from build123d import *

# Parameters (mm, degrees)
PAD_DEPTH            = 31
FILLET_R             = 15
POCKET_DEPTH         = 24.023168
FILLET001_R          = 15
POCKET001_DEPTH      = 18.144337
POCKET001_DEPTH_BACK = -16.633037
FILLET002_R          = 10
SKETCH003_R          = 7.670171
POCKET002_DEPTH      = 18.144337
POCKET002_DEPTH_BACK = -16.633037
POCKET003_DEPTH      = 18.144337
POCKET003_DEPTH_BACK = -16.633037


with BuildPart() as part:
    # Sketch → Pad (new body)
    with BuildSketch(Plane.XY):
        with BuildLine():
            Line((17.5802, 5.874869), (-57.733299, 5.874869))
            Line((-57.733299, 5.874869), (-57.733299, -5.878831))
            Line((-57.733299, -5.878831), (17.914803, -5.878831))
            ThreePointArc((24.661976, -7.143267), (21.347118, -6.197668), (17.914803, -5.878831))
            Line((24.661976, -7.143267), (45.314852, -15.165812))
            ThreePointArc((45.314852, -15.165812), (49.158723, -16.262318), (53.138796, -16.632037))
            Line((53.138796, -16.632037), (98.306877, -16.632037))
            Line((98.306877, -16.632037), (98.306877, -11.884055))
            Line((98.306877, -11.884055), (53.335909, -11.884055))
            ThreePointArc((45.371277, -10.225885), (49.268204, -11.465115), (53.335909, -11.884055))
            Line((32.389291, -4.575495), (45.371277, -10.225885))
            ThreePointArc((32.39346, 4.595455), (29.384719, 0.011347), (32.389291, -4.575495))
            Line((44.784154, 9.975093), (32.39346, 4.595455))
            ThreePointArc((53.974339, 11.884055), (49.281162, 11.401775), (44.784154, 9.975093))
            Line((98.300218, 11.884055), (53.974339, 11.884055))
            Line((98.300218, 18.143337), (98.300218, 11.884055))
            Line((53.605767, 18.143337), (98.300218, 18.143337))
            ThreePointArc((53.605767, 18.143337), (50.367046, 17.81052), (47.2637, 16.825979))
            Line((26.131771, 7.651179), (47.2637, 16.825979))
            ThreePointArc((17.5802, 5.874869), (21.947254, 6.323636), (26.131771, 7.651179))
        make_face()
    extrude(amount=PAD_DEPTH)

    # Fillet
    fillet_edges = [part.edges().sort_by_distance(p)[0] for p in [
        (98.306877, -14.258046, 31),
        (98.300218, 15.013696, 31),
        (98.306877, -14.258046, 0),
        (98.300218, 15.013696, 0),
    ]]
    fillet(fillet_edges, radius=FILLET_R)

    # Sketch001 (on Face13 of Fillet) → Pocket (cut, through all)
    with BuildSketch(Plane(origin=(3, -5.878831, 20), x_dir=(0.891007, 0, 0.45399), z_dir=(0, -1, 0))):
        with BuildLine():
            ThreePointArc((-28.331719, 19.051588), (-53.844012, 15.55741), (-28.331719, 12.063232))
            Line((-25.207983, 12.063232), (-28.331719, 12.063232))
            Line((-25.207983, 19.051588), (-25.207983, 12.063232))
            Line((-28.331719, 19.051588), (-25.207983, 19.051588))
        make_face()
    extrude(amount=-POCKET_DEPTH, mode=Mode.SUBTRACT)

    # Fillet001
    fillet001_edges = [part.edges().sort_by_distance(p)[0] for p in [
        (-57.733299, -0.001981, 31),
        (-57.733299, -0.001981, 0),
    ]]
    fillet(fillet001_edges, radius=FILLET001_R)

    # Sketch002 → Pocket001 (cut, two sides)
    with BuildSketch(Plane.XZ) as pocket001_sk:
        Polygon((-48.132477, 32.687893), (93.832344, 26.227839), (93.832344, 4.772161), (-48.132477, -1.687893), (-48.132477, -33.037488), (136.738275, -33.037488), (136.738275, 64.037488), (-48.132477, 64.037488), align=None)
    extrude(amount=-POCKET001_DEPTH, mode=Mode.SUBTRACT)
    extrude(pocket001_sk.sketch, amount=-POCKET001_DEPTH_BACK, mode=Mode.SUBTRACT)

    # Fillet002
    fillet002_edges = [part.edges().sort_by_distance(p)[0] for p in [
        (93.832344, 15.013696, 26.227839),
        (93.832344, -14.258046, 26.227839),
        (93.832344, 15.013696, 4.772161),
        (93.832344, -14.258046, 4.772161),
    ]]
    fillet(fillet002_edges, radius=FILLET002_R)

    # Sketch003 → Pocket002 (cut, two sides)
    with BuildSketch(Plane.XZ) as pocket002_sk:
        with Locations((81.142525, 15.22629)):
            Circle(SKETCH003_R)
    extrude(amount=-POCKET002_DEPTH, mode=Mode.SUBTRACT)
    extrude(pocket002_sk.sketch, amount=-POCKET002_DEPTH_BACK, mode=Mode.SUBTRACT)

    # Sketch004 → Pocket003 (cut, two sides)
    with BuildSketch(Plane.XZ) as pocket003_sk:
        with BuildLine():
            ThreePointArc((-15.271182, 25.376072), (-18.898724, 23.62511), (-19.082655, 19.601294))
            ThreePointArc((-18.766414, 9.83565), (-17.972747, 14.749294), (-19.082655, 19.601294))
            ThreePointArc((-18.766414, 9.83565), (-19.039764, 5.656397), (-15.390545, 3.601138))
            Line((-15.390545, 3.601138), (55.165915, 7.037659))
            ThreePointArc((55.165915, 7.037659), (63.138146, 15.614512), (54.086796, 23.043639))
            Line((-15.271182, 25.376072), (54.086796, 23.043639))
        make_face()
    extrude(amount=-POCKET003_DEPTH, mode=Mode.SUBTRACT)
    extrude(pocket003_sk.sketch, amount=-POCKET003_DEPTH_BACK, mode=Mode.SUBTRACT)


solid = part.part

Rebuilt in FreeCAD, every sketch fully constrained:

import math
import FreeCAD as App
import Part
import Sketcher
Q = App.Units.Quantity


def edges_at(feature, points):
    """Names of the edges that pass closest to the given points."""
    edges = feature.Shape.Edges
    near = lambda p: min(range(len(edges)), key=lambda i: edges[i].distToShape(Part.Vertex(*p))[0])
    return sorted({f"Edge{near(p) + 1}" for p in points})


def add_polygon(sketch, points):
    """Adds a closed chain of lines whose ends are joined by coincident constraints."""
    first, n = sketch.GeometryCount, len(points)
    for a, b in zip(points, points[1:] + points[:1]):
        sketch.addGeometry(Part.LineSegment(App.Vector(*a, 0), App.Vector(*b, 0)), False)
    for i in range(n):
        sketch.addConstraint(Sketcher.Constraint("Coincident", first + i, 2, first + (i + 1) % n, 1))

doc = App.newDocument("Part")
params = doc.addObject("Spreadsheet::Sheet", "Params")
for row, (alias, value) in enumerate([
    ("sketch1_radius", "5 mm"),
    ("pad1_length", "31 mm"),
    ("fillet_radius", "15 mm"),
    ("fillet2_radius", "15 mm"),
    ("fillet3_radius", "10 mm"),
], start=1):
    params.set(f"A{row}", alias)
    params.set(f"B{row}", "=" + value)
    params.setAlias(f"B{row}", alias)

body = doc.addObject("PartDesign::Body", "Body")

# Sketch on XY plane
sketch1 = body.newObject("Sketcher::SketchObject", "Sketch")
sketch1.AttachmentSupport = (doc.getObject("XY_Plane"), [""])
sketch1.MapMode = "FlatFace"
sketch1.addGeometry(Part.LineSegment(App.Vector(17.6, 5.9, 0), App.Vector(-57.7, 5.9, 0)), False)
sketch1.addGeometry(Part.LineSegment(App.Vector(-57.7, 5.9, 0), App.Vector(-57.7, -5.9, 0)), False)
sketch1.addGeometry(Part.LineSegment(App.Vector(-57.7, -5.9, 0), App.Vector(17.9, -5.9, 0)), False)
sketch1.addGeometry(Part.ArcOfCircle(Part.Circle(App.Vector(17.9, -24.5, 0), App.Vector(0, 0, 1), 18.6), math.radians(69), math.radians(90)), False)
sketch1.addGeometry(Part.LineSegment(App.Vector(24.7, -7.1, 0), App.Vector(45.3, -15.2, 0)), False)
sketch1.addGeometry(Part.ArcOfCircle(Part.Circle(App.Vector(53.1, 5, 0), App.Vector(0, 0, 1), 21.6), math.radians(-111), math.radians(-90)), False)
sketch1.addGeometry(Part.LineSegment(App.Vector(53.1, -16.6, 0), App.Vector(98.3, -16.6, 0)), False)
sketch1.addGeometry(Part.LineSegment(App.Vector(98.3, -16.6, 0), App.Vector(98.3, -11.9, 0)), False)
sketch1.addGeometry(Part.LineSegment(App.Vector(98.3, -11.9, 0), App.Vector(53.3, -11.9, 0)), False)
sketch1.addGeometry(Part.ArcOfCircle(Part.Circle(App.Vector(53.3, 8.1, 0), App.Vector(0, 0, 1), 20), math.radians(-114), math.radians(-90)), False)
sketch1.addGeometry(Part.LineSegment(App.Vector(45.4, -10.2, 0), App.Vector(32.4, -4.6, 0)), False)
sketch1.addGeometry(Part.ArcOfCircle(Part.Circle(App.Vector(34.4, 0, 0), App.Vector(0, 0, 1), 5), math.radians(113), math.radians(246)), False)
sketch1.addGeometry(Part.LineSegment(App.Vector(32.4, 4.6, 0), App.Vector(44.8, 10, 0)), False)
sketch1.addGeometry(Part.ArcOfCircle(Part.Circle(App.Vector(54, -11.2, 0), App.Vector(0, 0, 1), 23.1), math.radians(90), math.radians(113)), False)
sketch1.addGeometry(Part.LineSegment(App.Vector(54, 11.9, 0), App.Vector(98.3, 11.9, 0)), False)
sketch1.addGeometry(Part.LineSegment(App.Vector(98.3, 11.9, 0), App.Vector(98.3, 18.1, 0)), False)
sketch1.addGeometry(Part.LineSegment(App.Vector(98.3, 18.1, 0), App.Vector(53.6, 18.1, 0)), False)
sketch1.addGeometry(Part.ArcOfCircle(Part.Circle(App.Vector(53.6, 2.2, 0), App.Vector(0, 0, 1), 15.9), math.radians(90), math.radians(113)), False)
sketch1.addGeometry(Part.LineSegment(App.Vector(47.3, 16.8, 0), App.Vector(26.1, 7.7, 0)), False)
sketch1.addGeometry(Part.ArcOfCircle(Part.Circle(App.Vector(17.6, 27.3, 0), App.Vector(0, 0, 1), 21.5), math.radians(-90), math.radians(-67)), False)
sketch1.addConstraint(Sketcher.Constraint("Coincident", 0, 2, 1, 1))
sketch1.addConstraint(Sketcher.Constraint("Coincident", 1, 2, 2, 1))
sketch1.addConstraint(Sketcher.Constraint("Tangent", 2, 2, 3, 2))
sketch1.addConstraint(Sketcher.Constraint("Tangent", 3, 1, 4, 1))
sketch1.addConstraint(Sketcher.Constraint("Tangent", 4, 2, 5, 1))
sketch1.addConstraint(Sketcher.Constraint("Tangent", 5, 2, 6, 1))
sketch1.addConstraint(Sketcher.Constraint("Coincident", 6, 2, 7, 1))
sketch1.addConstraint(Sketcher.Constraint("Coincident", 7, 2, 8, 1))
sketch1.addConstraint(Sketcher.Constraint("Tangent", 8, 2, 9, 2))
sketch1.addConstraint(Sketcher.Constraint("Tangent", 9, 1, 10, 1))
sketch1.addConstraint(Sketcher.Constraint("Tangent", 10, 2, 11, 2))
sketch1.addConstraint(Sketcher.Constraint("Tangent", 11, 1, 12, 1))
sketch1.addConstraint(Sketcher.Constraint("Tangent", 12, 2, 13, 2))
sketch1.addConstraint(Sketcher.Constraint("Tangent", 13, 1, 14, 1))
sketch1.addConstraint(Sketcher.Constraint("Coincident", 14, 2, 15, 1))
sketch1.addConstraint(Sketcher.Constraint("Coincident", 15, 2, 16, 1))
sketch1.addConstraint(Sketcher.Constraint("Tangent", 16, 2, 17, 1))
sketch1.addConstraint(Sketcher.Constraint("Tangent", 17, 2, 18, 1))
sketch1.addConstraint(Sketcher.Constraint("Tangent", 18, 2, 19, 2))
sketch1.addConstraint(Sketcher.Constraint("Tangent", 19, 1, 0, 1))
sketch1.addConstraint(Sketcher.Constraint("Horizontal", 0))
sketch1.addConstraint(Sketcher.Constraint("Vertical", 1))
sketch1.addConstraint(Sketcher.Constraint("Horizontal", 2))
sketch1.addConstraint(Sketcher.Constraint("Horizontal", 6))
sketch1.addConstraint(Sketcher.Constraint("Vertical", 7))
sketch1.addConstraint(Sketcher.Constraint("Horizontal", 8))
sketch1.addConstraint(Sketcher.Constraint("Horizontal", 14))
sketch1.addConstraint(Sketcher.Constraint("Vertical", 15))
sketch1.addConstraint(Sketcher.Constraint("Horizontal", 16))
sketch1.addConstraint(Sketcher.Constraint("Parallel", 12, 18))
sketch1.addConstraint(Sketcher.Constraint("Radius", 11, Q("5 mm")))
sketch1.addConstraint(Sketcher.Constraint("Radius", 3, Q("18.634071 mm")))
sketch1.addConstraint(Sketcher.Constraint("Radius", 13, Q("23.076311 mm")))
sketch1.addConstraint(Sketcher.Constraint("Radius", 17, Q("15.924751 mm")))
sketch1.addConstraint(Sketcher.Constraint("DistanceX", 0, 2, 0, 1, Q("75.313499 mm")))
sketch1.addConstraint(Sketcher.Constraint("DistanceX", 2, 1, 2, 2, Q("75.648102 mm")))
sketch1.addConstraint(Sketcher.Constraint("DistanceY", 1, 2, 1, 1, Q("11.7537 mm")))
sketch1.addConstraint(Sketcher.Constraint("Radius", 5, Q("21.607823 mm")))
sketch1.addConstraint(Sketcher.Constraint("Radius", 9, Q("19.957223 mm")))
sketch1.addConstraint(Sketcher.Constraint("Radius", 19, Q("21.472786 mm")))
sketch1.addConstraint(Sketcher.Constraint("DistanceX", 6, 1, 6, 2, Q("45.168081 mm")))
sketch1.addConstraint(Sketcher.Constraint("DistanceX", 14, 1, 14, 2, Q("44.325879 mm")))
sketch1.addConstraint(Sketcher.Constraint("DistanceX", 16, 2, 16, 1, Q("44.694451 mm")))
sketch1.addConstraint(Sketcher.Constraint("DistanceY", 15, 1, 15, 2, Q("6.259282 mm")))
sketch1.addConstraint(Sketcher.Constraint("DistanceX", -1, 1, 3, 3, Q("17.9148 mm")))
sketch1.addConstraint(Sketcher.Constraint("DistanceY", 3, 3, -1, 1, Q("24.512902 mm")))
sketch1.addConstraint(Sketcher.Constraint("DistanceX", -1, 1, 17, 2, Q("47.2637 mm")))
sketch1.addConstraint(Sketcher.Constraint("DistanceY", 17, 3, 5, 3, Q("2.7572 mm")))
sketch1.addConstraint(Sketcher.Constraint("DistanceY", 0, 2, 9, 3, Q("2.198299 mm")))
sketch1.addConstraint(Sketcher.Constraint("DistanceY", 4, 2, 5, 3, Q("20.141598 mm")))
sketch1.addConstraint(Sketcher.Constraint("DistanceY", 7, 2, 13, 3, Q("0.691799 mm")))
sketch1.addConstraint(Sketcher.Constraint("DistanceY", 11, 1, 13, 1, Q("7.2886 mm")))
sketch1.addConstraint(Sketcher.Constraint("Distance", 10, Q("14.15835 mm")))
sketch1.setExpression("Constraints[30]", "Params.sketch1_radius")
pad1 = body.newObject("PartDesign::Pad", "Pad")
pad1.Profile = sketch1
pad1.setExpression("Length", "Params.pad1_length")
doc.recompute()

fillet = body.newObject("PartDesign::Fillet", "Fillet")
fillet.Base = (pad1, edges_at(pad1, [
    (98.307, -14.258, 31),
    (98.3, 15.014, 31),
    (98.307, -14.258, 0),
    (98.3, 15.014, 0),
]))
fillet.setExpression("Radius", "Params.fillet_radius")

# Sketch on XZ plane
sketch2 = body.newObject("Sketcher::SketchObject", "Sketch001")
sketch2.AttachmentSupport = (doc.getObject("XZ_Plane"), [""])
sketch2.MapMode = "FlatFace"
sketch2.AttachmentOffset = App.Placement(App.Vector(0, 0, 5.878831), App.Rotation())
sketch2.addGeometry(Part.ArcOfCircle(Part.Circle(App.Vector(-40.5, 15.3, 0), App.Vector(0, 0, 1), 13), math.radians(43), math.radians(371)), False)
sketch2.addGeometry(Part.LineSegment(App.Vector(-27.7, 17.9, 0), App.Vector(-24.9, 19.3, 0)), False)
sketch2.addGeometry(Part.LineSegment(App.Vector(-24.9, 19.3, 0), App.Vector(-28.1, 25.5, 0)), False)
sketch2.addGeometry(Part.LineSegment(App.Vector(-28.1, 25.5, 0), App.Vector(-30.9, 24.1, 0)), False)
sketch2.addConstraint(Sketcher.Constraint("Coincident", 0, 2, 1, 1))
sketch2.addConstraint(Sketcher.Constraint("Coincident", 1, 2, 2, 1))
sketch2.addConstraint(Sketcher.Constraint("Coincident", 2, 2, 3, 1))
sketch2.addConstraint(Sketcher.Constraint("Coincident", 3, 2, 0, 1))
sketch2.addConstraint(Sketcher.Constraint("Perpendicular", 1, 2))
sketch2.addConstraint(Sketcher.Constraint("Perpendicular", 2, 3))
sketch2.addConstraint(Sketcher.Constraint("Equal", 1, 3))
sketch2.addConstraint(Sketcher.Constraint("Radius", 0, Q("12.995429 mm")))
sketch2.addConstraint(Sketcher.Constraint("DistanceX", 0, 2, -1, 1, Q("27.720341 mm")))
sketch2.addConstraint(Sketcher.Constraint("DistanceX", 1, 2, -1, 1, Q("24.93707 mm")))
sketch2.addConstraint(Sketcher.Constraint("DistanceY", -1, 1, 3, 2, Q("24.11278 mm")))
sketch2.addConstraint(Sketcher.Constraint("DistanceY", 0, 3, 1, 2, Q("3.987338 mm")))
sketch2.addConstraint(Sketcher.Constraint("DistanceX", 0, 3, 2, 2, Q("12.34956 mm")))
pocket1 = body.newObject("PartDesign::Pocket", "Pocket")
pocket1.Profile = sketch2
pocket1.Type = "ThroughAll"
doc.recompute()

fillet2 = body.newObject("PartDesign::Fillet", "Fillet001")
fillet2.Base = (pocket1, edges_at(pocket1, [(-57.733, -0.002, 31), (-57.733, -0.002, 0)]))
fillet2.setExpression("Radius", "Params.fillet2_radius")

# Sketch on XZ plane
sketch3 = body.newObject("Sketcher::SketchObject", "Sketch002")
sketch3.AttachmentSupport = (doc.getObject("XZ_Plane"), [""])
sketch3.MapMode = "FlatFace"
add_polygon(sketch3, [(-48, 33), (94, 26), (94, 5), (-48, -2), (-48, -33), (137, -33), (137, 64), (-48, 64)])  # lines 0-7
sketch3.addConstraint(Sketcher.Constraint("Vertical", 1))
sketch3.addConstraint(Sketcher.Constraint("Vertical", 3))
sketch3.addConstraint(Sketcher.Constraint("Horizontal", 4))
sketch3.addConstraint(Sketcher.Constraint("Vertical", 5))
sketch3.addConstraint(Sketcher.Constraint("Horizontal", 6))
sketch3.addConstraint(Sketcher.Constraint("Vertical", 7))
sketch3.addConstraint(Sketcher.Constraint("Vertical", 3, 2, 6, 2))
sketch3.addConstraint(Sketcher.Constraint("Equal", 3, 7))
sketch3.addConstraint(Sketcher.Constraint("Equal", 0, 2))
sketch3.addConstraint(Sketcher.Constraint("DistanceX", 4, 1, 4, 2, Q("184.870752 mm")))
sketch3.addConstraint(Sketcher.Constraint("DistanceY", 1, 2, 1, 1, Q("21.455678 mm")))
sketch3.addConstraint(Sketcher.Constraint("DistanceY", 3, 2, 3, 1, Q("31.349595 mm")))
sketch3.addConstraint(Sketcher.Constraint("DistanceY", 5, 1, 5, 2, Q("97.074976 mm")))
sketch3.addConstraint(Sketcher.Constraint("DistanceY", -1, 1, 0, 2, Q("26.227839 mm")))
sketch3.addConstraint(Sketcher.Constraint("DistanceX", 2, 2, 1, 2, Q("141.964821 mm")))
sketch3.addConstraint(Sketcher.Constraint("DistanceX", -1, 1, 0, 2, Q("93.832344 mm")))
pocket2 = body.newObject("PartDesign::Pocket", "Pocket001")
pocket2.Profile = sketch3
pocket2.Type = "ThroughAll"
pocket2.Midplane = True
doc.recompute()

fillet3 = body.newObject("PartDesign::Fillet", "Fillet002")
fillet3.Base = (pocket2, edges_at(pocket2, [
    (93.832, 15.014, 26.228),
    (93.832, -14.258, 26.228),
    (93.832, 15.014, 4.772),
    (93.832, -14.258, 4.772),
]))
fillet3.setExpression("Radius", "Params.fillet3_radius")

# Sketch on XZ plane
sketch4 = body.newObject("Sketcher::SketchObject", "Sketch003")
sketch4.AttachmentSupport = (doc.getObject("XZ_Plane"), [""])
sketch4.MapMode = "FlatFace"
sketch4.addGeometry(Part.Circle(App.Vector(81, 15, 0), App.Vector(0, 0, 1), 8), False)
sketch4.addConstraint(Sketcher.Constraint("Diameter", 0, Q("15.340342 mm")))
sketch4.addConstraint(Sketcher.Constraint("DistanceY", -1, 1, 0, 3, Q("15.22629 mm")))
sketch4.addConstraint(Sketcher.Constraint("DistanceX", -1, 1, 0, 3, Q("81.142525 mm")))
pocket3 = body.newObject("PartDesign::Pocket", "Pocket002")
pocket3.Profile = sketch4
pocket3.Type = "ThroughAll"
pocket3.Midplane = True

# Sketch on XZ plane
sketch5 = body.newObject("Sketcher::SketchObject", "Sketch004")
sketch5.AttachmentSupport = (doc.getObject("XZ_Plane"), [""])
sketch5.MapMode = "FlatFace"
sketch5.addGeometry(Part.ArcOfCircle(Part.Circle(App.Vector(-15.616811, 21.45898, 0), App.Vector(0, 0, 1), 3.932311), math.radians(84.957496), math.radians(208.19123)), False)
sketch5.addGeometry(Part.ArcOfCircle(Part.Circle(App.Vector(-30.973469, 14.328291, 0), App.Vector(0, 0, 1), 13.007537), math.radians(-20.205454), math.radians(23.914978)), False)
sketch5.addGeometry(Part.ArcOfCircle(Part.Circle(App.Vector(-15.581845, 7.528793, 0), App.Vector(0, 0, 1), 3.932311), math.radians(144.080952), math.radians(272.788443)), False)
sketch5.addGeometry(Part.LineSegment(App.Vector(-15.390545, 3.601138, 0), App.Vector(55.165915, 7.037659, 0)), False)
sketch5.addGeometry(Part.ArcOfCircle(Part.Circle(App.Vector(55.119949, 15.073927, 0), App.Vector(0, 0, 1), 8.036399), math.radians(-89.672282), math.radians(97.386341)), False)
sketch5.addGeometry(Part.LineSegment(App.Vector(54.086796, 23.043639, 0), App.Vector(-15.271182, 25.376072, 0)), False)
sketch5.addConstraint(Sketcher.Constraint("Coincident", 0, 2, 1, 2))
sketch5.addConstraint(Sketcher.Constraint("Coincident", 1, 1, 2, 1))
sketch5.addConstraint(Sketcher.Constraint("Coincident", 2, 2, 3, 1))
sketch5.addConstraint(Sketcher.Constraint("Coincident", 3, 2, 4, 1))
sketch5.addConstraint(Sketcher.Constraint("Coincident", 4, 2, 5, 1))
sketch5.addConstraint(Sketcher.Constraint("Coincident", 5, 2, 0, 1))
sketch5.addConstraint(Sketcher.Constraint("Radius", 4, Q("8.036399 mm")))
sketch5.addConstraint(Sketcher.Constraint("Radius", 0, Q("3.932311 mm")))
sketch5.addConstraint(Sketcher.Constraint("Radius", 2, Q("3.932311 mm")))
sketch5.addConstraint(Sketcher.Constraint("Radius", 1, Q("13.007537 mm")))
sketch5.addConstraint(Sketcher.Constraint("Distance", 3, Q("70.6401 mm")))
sketch5.addConstraint(Sketcher.Constraint("DistanceY", 2, 3, 1, 3, Q("6.799498 mm")))
sketch5.addConstraint(Sketcher.Constraint("DistanceY", 2, 3, 0, 2, Q("12.072501 mm")))
sketch5.addConstraint(Sketcher.Constraint("DistanceX", 2, 3, 2, 2, Q("0.1913 mm")))
sketch5.addConstraint(Sketcher.Constraint("DistanceY", 2, 2, 4, 2, Q("19.442501 mm")))
sketch5.addConstraint(Sketcher.Constraint("DistanceX", 0, 3, -1, 1, Q("15.616811 mm")))
sketch5.addConstraint(Sketcher.Constraint("DistanceY", -1, 1, 0, 3, Q("21.45898 mm")))
sketch5.addConstraint(Sketcher.Constraint("DistanceX", 1, 3, -1, 1, Q("30.973469 mm")))
sketch5.addConstraint(Sketcher.Constraint("DistanceX", -1, 1, 4, 3, Q("55.119949 mm")))
sketch5.addConstraint(Sketcher.Constraint("DistanceY", -1, 1, 1, 1, Q("9.83565 mm")))
sketch5.addConstraint(Sketcher.Constraint("DistanceY", -1, 1, 3, 2, Q("7.037659 mm")))
sketch5.addConstraint(Sketcher.Constraint("DistanceX", 0, 3, 5, 2, Q("0.345629 mm")))
pocket4 = body.newObject("PartDesign::Pocket", "Pocket003")
pocket4.Profile = sketch5
pocket4.Type = "ThroughAll"
pocket4.Midplane = True

doc.recompute()
